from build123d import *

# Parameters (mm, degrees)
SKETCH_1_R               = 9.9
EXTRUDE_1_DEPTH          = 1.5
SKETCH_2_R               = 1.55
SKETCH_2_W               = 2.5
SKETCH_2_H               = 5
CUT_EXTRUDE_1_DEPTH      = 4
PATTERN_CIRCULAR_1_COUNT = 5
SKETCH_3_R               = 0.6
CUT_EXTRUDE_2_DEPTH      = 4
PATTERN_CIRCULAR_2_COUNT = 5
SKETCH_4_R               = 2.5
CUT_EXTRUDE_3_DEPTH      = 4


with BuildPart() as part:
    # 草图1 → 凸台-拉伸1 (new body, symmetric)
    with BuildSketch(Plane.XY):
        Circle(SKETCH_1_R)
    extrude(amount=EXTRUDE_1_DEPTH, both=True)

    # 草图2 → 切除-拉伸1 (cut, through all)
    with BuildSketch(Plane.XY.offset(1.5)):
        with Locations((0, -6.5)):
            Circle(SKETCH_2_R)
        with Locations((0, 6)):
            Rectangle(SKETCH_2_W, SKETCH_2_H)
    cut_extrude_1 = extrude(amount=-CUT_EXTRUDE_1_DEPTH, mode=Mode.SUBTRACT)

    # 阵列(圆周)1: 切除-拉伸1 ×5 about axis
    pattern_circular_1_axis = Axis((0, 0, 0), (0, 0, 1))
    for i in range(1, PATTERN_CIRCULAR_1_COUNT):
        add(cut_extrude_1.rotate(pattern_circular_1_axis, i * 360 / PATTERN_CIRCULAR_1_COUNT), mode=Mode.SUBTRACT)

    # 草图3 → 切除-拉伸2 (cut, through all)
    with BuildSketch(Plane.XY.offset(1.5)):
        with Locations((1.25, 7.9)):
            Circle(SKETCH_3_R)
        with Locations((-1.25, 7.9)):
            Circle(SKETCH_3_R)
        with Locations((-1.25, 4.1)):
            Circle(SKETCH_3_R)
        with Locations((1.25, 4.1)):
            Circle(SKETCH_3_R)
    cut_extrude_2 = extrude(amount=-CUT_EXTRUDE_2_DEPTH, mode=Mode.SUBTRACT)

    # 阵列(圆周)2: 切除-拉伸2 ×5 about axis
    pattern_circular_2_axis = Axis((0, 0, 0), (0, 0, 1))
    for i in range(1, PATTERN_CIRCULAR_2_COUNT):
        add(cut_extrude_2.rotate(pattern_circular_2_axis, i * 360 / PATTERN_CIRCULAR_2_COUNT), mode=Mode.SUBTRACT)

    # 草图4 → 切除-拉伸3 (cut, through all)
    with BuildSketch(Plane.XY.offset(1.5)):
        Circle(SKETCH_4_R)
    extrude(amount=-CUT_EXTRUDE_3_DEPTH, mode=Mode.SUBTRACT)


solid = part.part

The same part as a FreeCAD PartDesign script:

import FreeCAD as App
import Part
import Sketcher
Q = App.Units.Quantity


def add_polygon(sketch, points):
    """Adds a closed chain of lines whose ends are joined by coincident constraints."""
    first, n = sketch.GeometryCount, len(points)
    for a, b in zip(points, points[1:] + points[:1]):
        sketch.addGeometry(Part.LineSegment(App.Vector(*a, 0), App.Vector(*b, 0)), False)
    for i in range(n):
        sketch.addConstraint(Sketcher.Constraint("Coincident", first + i, 2, first + (i + 1) % n, 1))

doc = App.newDocument("Part")
params = doc.addObject("Spreadsheet::Sheet", "Params")
for row, (alias, value) in enumerate([
    ("sketch1_diameter", "19.8 mm"),
    ("pad1_length", "3 mm"),
    ("sketch2_diameter", "3.1 mm"),
    ("sketch2_height", "5 mm"),
    ("sketch2_width", "2.5 mm"),
    ("sketch3_diameter", "1.2 mm"),
    ("sketch4_diameter", "5 mm"),
], start=1):
    params.set(f"A{row}", alias)
    params.set(f"B{row}", "=" + value)
    params.setAlias(f"B{row}", alias)

body = doc.addObject("PartDesign::Body", "Body")

# Sketch on XY plane
sketch1 = body.newObject("Sketcher::SketchObject", "Sketch")
sketch1.AttachmentSupport = (doc.getObject("XY_Plane"), [""])
sketch1.MapMode = "FlatFace"
sketch1.addGeometry(Part.Circle(App.Vector(0, 0, 0), App.Vector(0, 0, 1), 10), False)
sketch1.addConstraint([
    Sketcher.Constraint("Coincident", 0, 3, -1, 1),
    Sketcher.Constraint("Diameter", 0, Q("19.8 mm")),
])
sketch1.setExpression("Constraints[1]", "Params.sketch1_diameter")
pad1 = body.newObject("PartDesign::Pad", "Pad")
pad1.Profile = sketch1
pad1.setExpression("Length", "Params.pad1_length")
pad1.Midplane = True

# Sketch on XY plane
sketch2 = body.newObject("Sketcher::SketchObject", "Sketch001")
sketch2.AttachmentSupport = (doc.getObject("XY_Plane"), [""])
sketch2.MapMode = "FlatFace"
sketch2.AttachmentOffset = App.Placement(App.Vector(0, 0, 1.5), App.Rotation())
sketch2.addGeometry(Part.Circle(App.Vector(0, -6.5, 0), App.Vector(0, 0, 1), 1.6), False)  # 0
add_polygon(sketch2, [(-1.2, 8.5), (-1.2, 3.5), (1.2, 3.5), (1.2, 8.5)])  # lines 1-4
sketch2.addConstraint([
    Sketcher.Constraint("Vertical", 1),
    Sketcher.Constraint("Horizontal", 2),
    Sketcher.Constraint("Vertical", 3),
    Sketcher.Constraint("Horizontal", 4),
    Sketcher.Constraint("PointOnObject", 0, 3, -2),
    Sketcher.Constraint("Diameter", 0, Q("3.1 mm")),
    Sketcher.Constraint("DistanceY", 1, 2, 1, 1, Q("5 mm")),
    Sketcher.Constraint("DistanceX", 2, 1, 2, 2, Q("2.5 mm")),
    Sketcher.Constraint("DistanceY", 0, 3, 1, 2, Q("10 mm")),
    Sketcher.Constraint("DistanceY", 0, 3, -1, 1, Q("6.5 mm")),
    Sketcher.Constraint("DistanceX", 1, 2, -1, 1, Q("1.25 mm")),
])
sketch2.setExpression("Constraints[9]", "Params.sketch2_diameter")
sketch2.setExpression("Constraints[10]", "Params.sketch2_height")
sketch2.setExpression("Constraints[11]", "Params.sketch2_width")
pocket1 = body.newObject("PartDesign::Pocket", "Pocket")
pocket1.Profile = sketch2
pocket1.Type = "ThroughAll"
doc.recompute()

polarpattern = body.newObject("PartDesign::PolarPattern", "PolarPattern")
polarpattern.Originals = [pocket1]
polarpattern.Axis = (doc.getObject("Z_Axis"), [""])
polarpattern.Angle = 360
polarpattern.Occurrences = 5
body.Tip = polarpattern

# Sketch on XY plane
sketch3 = body.newObject("Sketcher::SketchObject", "Sketch002")
sketch3.AttachmentSupport = (doc.getObject("XY_Plane"), [""])
sketch3.MapMode = "FlatFace"
sketch3.AttachmentOffset = App.Placement(App.Vector(0, 0, 1.5), App.Rotation())
sketch3.addGeometry([
    Part.Circle(App.Vector(1.2, 7.9, 0), App.Vector(0, 0, 1), 0.6),
    Part.Circle(App.Vector(-1.2, 7.9, 0), App.Vector(0, 0, 1), 0.6),
    Part.Circle(App.Vector(-1.2, 4.1, 0), App.Vector(0, 0, 1), 0.6),
    Part.Circle(App.Vector(1.2, 4.1, 0), App.Vector(0, 0, 1), 0.6),
], False)
sketch3.addConstraint([
    Sketcher.Constraint("Equal", 0, 1),
    Sketcher.Constraint("Equal", 1, 2),
    Sketcher.Constraint("Equal", 2, 3),
    Sketcher.Constraint("Symmetric", 0, 3, 1, 3, -2),
    Sketcher.Constraint("Symmetric", 2, 3, 3, 3, -2),
    Sketcher.Constraint("Vertical", 1, 3, 2, 3),
    Sketcher.Constraint("Diameter", 0, Q("1.2 mm")),
    Sketcher.Constraint("DistanceY", -1, 1, 0, 3, Q("7.9 mm")),
    Sketcher.Constraint("DistanceY", -1, 1, 2, 3, Q("4.1 mm")),
    Sketcher.Constraint("DistanceX", 1, 3, 0, 3, Q("2.5 mm")),
])
sketch3.setExpression("Constraints[6]", "Params.sketch3_diameter")
pocket2 = body.newObject("PartDesign::Pocket", "Pocket001")
pocket2.Profile = sketch3
pocket2.Type = "ThroughAll"
doc.recompute()

polarpattern2 = body.newObject("PartDesign::PolarPattern", "PolarPattern001")
polarpattern2.Originals = [pocket2]
polarpattern2.Axis = (doc.getObject("Z_Axis"), [""])
polarpattern2.Angle = 360
polarpattern2.Occurrences = 5
body.Tip = polarpattern2

# Sketch on XY plane
sketch4 = body.newObject("Sketcher::SketchObject", "Sketch003")
sketch4.AttachmentSupport = (doc.getObject("XY_Plane"), [""])
sketch4.MapMode = "FlatFace"
sketch4.AttachmentOffset = App.Placement(App.Vector(0, 0, 1.5), App.Rotation())
sketch4.addGeometry(Part.Circle(App.Vector(0, 0, 0), App.Vector(0, 0, 1), 2.5), False)
sketch4.addConstraint([
    Sketcher.Constraint("Coincident", 0, 3, -1, 1),
    Sketcher.Constraint("Diameter", 0, Q("5 mm")),
])
sketch4.setExpression("Constraints[1]", "Params.sketch4_diameter")
pocket3 = body.newObject("PartDesign::Pocket", "Pocket002")
pocket3.Profile = sketch4
pocket3.Type = "ThroughAll"

doc.recompute()
